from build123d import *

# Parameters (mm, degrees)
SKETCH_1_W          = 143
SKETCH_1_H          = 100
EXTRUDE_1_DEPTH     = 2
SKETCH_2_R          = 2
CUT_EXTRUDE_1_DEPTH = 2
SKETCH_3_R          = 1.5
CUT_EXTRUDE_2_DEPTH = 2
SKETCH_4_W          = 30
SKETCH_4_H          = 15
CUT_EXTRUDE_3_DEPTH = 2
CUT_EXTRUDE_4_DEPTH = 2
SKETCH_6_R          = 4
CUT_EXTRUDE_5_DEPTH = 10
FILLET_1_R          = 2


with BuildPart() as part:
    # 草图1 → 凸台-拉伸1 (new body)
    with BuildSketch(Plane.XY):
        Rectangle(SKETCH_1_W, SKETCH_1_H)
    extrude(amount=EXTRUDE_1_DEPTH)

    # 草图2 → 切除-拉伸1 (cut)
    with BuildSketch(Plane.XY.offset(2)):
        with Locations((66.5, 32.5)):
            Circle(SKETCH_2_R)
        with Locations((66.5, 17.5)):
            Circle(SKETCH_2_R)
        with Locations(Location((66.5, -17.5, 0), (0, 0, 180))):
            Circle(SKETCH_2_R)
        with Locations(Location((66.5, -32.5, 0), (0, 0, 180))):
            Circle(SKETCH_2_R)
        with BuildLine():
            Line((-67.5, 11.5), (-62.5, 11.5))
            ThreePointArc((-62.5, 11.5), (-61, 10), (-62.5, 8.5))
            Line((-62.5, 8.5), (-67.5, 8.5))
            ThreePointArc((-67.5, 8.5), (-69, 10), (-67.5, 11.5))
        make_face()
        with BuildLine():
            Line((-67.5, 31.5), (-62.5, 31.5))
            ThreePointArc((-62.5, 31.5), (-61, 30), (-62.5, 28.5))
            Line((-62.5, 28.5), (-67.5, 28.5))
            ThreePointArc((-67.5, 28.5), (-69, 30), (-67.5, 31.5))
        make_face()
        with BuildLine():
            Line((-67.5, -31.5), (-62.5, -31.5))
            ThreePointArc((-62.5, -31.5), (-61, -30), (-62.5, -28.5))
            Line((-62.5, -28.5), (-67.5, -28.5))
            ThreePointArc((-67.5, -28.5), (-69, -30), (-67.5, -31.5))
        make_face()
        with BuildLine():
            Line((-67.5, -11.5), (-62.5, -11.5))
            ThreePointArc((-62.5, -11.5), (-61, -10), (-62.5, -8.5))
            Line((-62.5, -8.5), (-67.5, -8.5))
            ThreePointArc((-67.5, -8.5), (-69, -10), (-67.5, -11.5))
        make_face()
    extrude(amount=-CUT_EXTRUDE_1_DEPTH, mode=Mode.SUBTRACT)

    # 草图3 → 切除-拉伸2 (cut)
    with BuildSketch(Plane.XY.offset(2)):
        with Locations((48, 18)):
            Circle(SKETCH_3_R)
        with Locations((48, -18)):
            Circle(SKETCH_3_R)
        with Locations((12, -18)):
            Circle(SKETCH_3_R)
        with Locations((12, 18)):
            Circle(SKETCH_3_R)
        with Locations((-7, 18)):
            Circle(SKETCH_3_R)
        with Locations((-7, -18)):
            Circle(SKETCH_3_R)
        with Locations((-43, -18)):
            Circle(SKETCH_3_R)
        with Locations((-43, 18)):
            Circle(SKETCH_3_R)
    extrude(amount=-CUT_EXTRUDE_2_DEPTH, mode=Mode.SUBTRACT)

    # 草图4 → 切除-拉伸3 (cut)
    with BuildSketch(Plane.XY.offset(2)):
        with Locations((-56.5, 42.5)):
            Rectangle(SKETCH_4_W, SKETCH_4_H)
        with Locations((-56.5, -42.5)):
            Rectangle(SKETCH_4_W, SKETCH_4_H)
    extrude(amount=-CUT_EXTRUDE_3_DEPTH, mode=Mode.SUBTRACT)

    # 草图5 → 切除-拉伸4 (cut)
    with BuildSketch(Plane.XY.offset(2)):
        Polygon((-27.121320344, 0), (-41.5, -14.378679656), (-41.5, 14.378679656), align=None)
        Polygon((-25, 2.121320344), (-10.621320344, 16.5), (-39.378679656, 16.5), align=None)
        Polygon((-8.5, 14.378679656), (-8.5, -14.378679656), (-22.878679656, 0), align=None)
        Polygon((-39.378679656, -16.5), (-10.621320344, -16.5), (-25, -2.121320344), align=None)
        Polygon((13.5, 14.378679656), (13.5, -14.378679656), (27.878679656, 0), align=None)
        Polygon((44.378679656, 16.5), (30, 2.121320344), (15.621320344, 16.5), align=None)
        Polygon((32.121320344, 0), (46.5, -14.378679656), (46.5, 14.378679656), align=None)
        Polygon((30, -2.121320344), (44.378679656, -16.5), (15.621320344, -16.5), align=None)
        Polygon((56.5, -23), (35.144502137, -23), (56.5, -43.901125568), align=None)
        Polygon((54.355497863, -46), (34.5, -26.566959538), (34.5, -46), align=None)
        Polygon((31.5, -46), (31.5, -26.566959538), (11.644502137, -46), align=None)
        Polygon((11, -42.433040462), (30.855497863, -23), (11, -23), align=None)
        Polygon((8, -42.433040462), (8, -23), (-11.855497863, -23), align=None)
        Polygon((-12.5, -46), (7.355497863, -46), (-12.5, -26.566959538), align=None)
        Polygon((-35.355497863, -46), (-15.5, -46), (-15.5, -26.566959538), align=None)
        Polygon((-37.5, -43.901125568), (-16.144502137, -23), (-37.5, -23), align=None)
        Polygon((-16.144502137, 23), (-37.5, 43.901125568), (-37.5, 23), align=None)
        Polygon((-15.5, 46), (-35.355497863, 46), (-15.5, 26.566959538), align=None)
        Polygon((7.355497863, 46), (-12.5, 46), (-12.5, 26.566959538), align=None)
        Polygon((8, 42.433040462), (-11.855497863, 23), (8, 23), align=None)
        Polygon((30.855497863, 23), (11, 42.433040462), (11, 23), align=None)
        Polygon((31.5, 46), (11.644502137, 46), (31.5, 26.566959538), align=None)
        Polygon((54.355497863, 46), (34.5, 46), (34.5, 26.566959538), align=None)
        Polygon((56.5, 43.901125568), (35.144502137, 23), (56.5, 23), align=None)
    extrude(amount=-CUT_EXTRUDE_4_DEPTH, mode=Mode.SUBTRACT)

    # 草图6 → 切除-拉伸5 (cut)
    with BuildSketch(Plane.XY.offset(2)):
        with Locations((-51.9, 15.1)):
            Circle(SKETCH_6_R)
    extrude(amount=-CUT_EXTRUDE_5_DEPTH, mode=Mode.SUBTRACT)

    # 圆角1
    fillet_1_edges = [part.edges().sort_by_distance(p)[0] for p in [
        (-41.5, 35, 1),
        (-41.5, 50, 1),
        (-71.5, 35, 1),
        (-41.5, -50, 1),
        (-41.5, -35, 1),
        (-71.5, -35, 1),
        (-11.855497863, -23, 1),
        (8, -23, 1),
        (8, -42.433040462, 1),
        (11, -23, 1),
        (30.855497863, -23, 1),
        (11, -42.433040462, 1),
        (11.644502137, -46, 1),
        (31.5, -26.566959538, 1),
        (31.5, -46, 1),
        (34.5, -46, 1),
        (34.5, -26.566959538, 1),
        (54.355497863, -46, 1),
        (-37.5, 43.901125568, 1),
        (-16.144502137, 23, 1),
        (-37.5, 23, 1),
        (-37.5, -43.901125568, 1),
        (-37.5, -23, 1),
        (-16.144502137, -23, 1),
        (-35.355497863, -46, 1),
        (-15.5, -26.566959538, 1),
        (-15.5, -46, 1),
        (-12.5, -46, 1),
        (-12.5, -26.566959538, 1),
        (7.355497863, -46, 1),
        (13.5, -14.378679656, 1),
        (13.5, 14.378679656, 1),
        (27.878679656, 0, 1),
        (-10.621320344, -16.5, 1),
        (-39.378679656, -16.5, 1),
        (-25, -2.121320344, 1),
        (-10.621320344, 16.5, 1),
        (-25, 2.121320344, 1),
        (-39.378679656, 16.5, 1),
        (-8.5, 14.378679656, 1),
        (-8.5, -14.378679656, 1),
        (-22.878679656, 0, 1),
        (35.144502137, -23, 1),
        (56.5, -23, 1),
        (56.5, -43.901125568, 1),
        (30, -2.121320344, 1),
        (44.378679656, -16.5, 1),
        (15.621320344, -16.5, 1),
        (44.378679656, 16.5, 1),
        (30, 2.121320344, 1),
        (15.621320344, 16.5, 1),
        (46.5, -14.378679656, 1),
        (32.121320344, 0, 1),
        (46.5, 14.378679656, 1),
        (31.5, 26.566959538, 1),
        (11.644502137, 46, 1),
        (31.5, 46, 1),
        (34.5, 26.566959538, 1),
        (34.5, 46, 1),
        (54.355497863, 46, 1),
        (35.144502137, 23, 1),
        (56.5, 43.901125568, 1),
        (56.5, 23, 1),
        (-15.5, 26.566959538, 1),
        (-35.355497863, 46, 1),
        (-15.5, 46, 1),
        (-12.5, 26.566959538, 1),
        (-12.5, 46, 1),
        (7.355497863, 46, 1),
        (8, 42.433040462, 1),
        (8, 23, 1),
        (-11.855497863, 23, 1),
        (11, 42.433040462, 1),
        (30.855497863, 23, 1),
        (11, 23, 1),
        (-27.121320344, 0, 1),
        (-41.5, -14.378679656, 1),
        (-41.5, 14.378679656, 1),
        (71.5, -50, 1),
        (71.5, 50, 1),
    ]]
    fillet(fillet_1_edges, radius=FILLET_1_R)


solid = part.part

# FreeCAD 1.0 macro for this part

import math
import FreeCAD as App
import Part
import Sketcher
Q = App.Units.Quantity


def edges_at(feature, points):
    """Names of the edges that pass closest to the given points."""
    edges = feature.Shape.Edges
    near = lambda p: min(range(len(edges)), key=lambda i: edges[i].distToShape(Part.Vertex(*p))[0])
    return sorted({f"Edge{near(p) + 1}" for p in points})

doc = App.newDocument("Part")
params = doc.addObject("Spreadsheet::Sheet", "Params")
for row, (alias, value) in enumerate([
    ("sketch1_width", "143 mm"),
    ("sketch1_height", "100 mm"),
    ("pad1_length", "2 mm"),
    ("sketch2_diameter", "4 mm"),
    ("sketch2_radius", "1.5 mm"),
    ("sketch2_width", "5 mm"),
    ("pocket1_length", "2 mm"),
    ("sketch3_diameter", "3 mm"),
    ("pocket2_length", "2 mm"),
    ("sketch4_width", "30 mm"),
    ("sketch4_height", "15 mm"),
    ("pocket3_length", "2 mm"),
    ("pocket4_length", "2 mm"),
    ("sketch6_diameter", "8 mm"),
    ("pocket5_length", "10 mm"),
    ("fillet_radius", "2 mm"),
], start=1):
    params.set(f"A{row}", alias)
    params.set(f"B{row}", "=" + value)
    params.setAlias(f"B{row}", alias)

body = doc.addObject("PartDesign::Body", "Body")

sketch1 = body.newObject("Sketcher::SketchObject", "Sketch")
sketch1.AttachmentSupport = (doc.getObject("XY_Plane"), [""])
sketch1.MapMode = "FlatFace"
sketch1.addGeometry([
    Part.LineSegment(App.Vector(-72, 50, 0), App.Vector(-72, -50, 0)),
    Part.LineSegment(App.Vector(-72, -50, 0), App.Vector(72, -50, 0)),
    Part.LineSegment(App.Vector(72, -50, 0), App.Vector(72, 50, 0)),
    Part.LineSegment(App.Vector(72, 50, 0), App.Vector(-72, 50, 0)),
], False)
sketch1.addConstraint([
    Sketcher.Constraint("Coincident", 0, 2, 1, 1),
    Sketcher.Constraint("Coincident", 1, 2, 2, 1),
    Sketcher.Constraint("Coincident", 2, 2, 3, 1),
    Sketcher.Constraint("Coincident", 3, 2, 0, 1),
    Sketcher.Constraint("Vertical", 0),
    Sketcher.Constraint("Horizontal", 1),
    Sketcher.Constraint("Vertical", 2),
    Sketcher.Constraint("Horizontal", 3),
    Sketcher.Constraint("Symmetric", 0, 2, 2, 2, -1, 1),
    Sketcher.Constraint("DistanceX", 1, 1, 1, 2, Q("143 mm")),
    Sketcher.Constraint("DistanceY", 0, 2, 0, 1, Q("100 mm")),
])
sketch1.setExpression("Constraints[9]", "Params.sketch1_width")
sketch1.setExpression("Constraints[10]", "Params.sketch1_height")
pad1 = body.newObject("PartDesign::Pad", "Pad")
pad1.Profile = sketch1
pad1.setExpression("Length", "Params.pad1_length")

sketch2 = body.newObject("Sketcher::SketchObject", "Sketch001")
sketch2.AttachmentSupport = (doc.getObject("XY_Plane"), [""])
sketch2.MapMode = "FlatFace"
sketch2.AttachmentOffset = App.Placement(App.Vector(0, 0, 2), App.Rotation())
sketch2.addGeometry([
    Part.Circle(App.Vector(66.5, 32.5, 0), App.Vector(0, 0, 1), 2),
    Part.Circle(App.Vector(66.5, 17.5, 0), App.Vector(0, 0, 1), 2),
    Part.Circle(App.Vector(66.5, -17.5, 0), App.Vector(0, 0, 1), 2),
    Part.Circle(App.Vector(66.5, -32.5, 0), App.Vector(0, 0, 1), 2),
    Part.LineSegment(App.Vector(-62.5, 11.5, 0), App.Vector(-67.5, 11.5, 0)),
    Part.ArcOfCircle(Part.Circle(App.Vector(-67.5, 10, 0), App.Vector(0, 0, 1), 1.5), math.radians(90), math.radians(270)),
    Part.LineSegment(App.Vector(-67.5, 8.5, 0), App.Vector(-62.5, 8.5, 0)),
    Part.ArcOfCircle(Part.Circle(App.Vector(-62.5, 10, 0), App.Vector(0, 0, 1), 1.5), math.radians(-90), math.radians(90)),
    Part.LineSegment(App.Vector(-62.5, 31.5, 0), App.Vector(-67.5, 31.5, 0)),
    Part.ArcOfCircle(Part.Circle(App.Vector(-67.5, 30, 0), App.Vector(0, 0, 1), 1.5), math.radians(90), math.radians(270)),
    Part.LineSegment(App.Vector(-67.5, 28.5, 0), App.Vector(-62.5, 28.5, 0)),
    Part.ArcOfCircle(Part.Circle(App.Vector(-62.5, 30, 0), App.Vector(0, 0, 1), 1.5), math.radians(-90), math.radians(90)),
    Part.LineSegment(App.Vector(-67.5, -31.5, 0), App.Vector(-62.5, -31.5, 0)),
    Part.ArcOfCircle(Part.Circle(App.Vector(-62.5, -30, 0), App.Vector(0, 0, 1), 1.5), math.radians(-90), math.radians(90)),
    Part.LineSegment(App.Vector(-62.5, -28.5, 0), App.Vector(-67.5, -28.5, 0)),
    Part.ArcOfCircle(Part.Circle(App.Vector(-67.5, -30, 0), App.Vector(0, 0, 1), 1.5), math.radians(90), math.radians(270)),
    Part.LineSegment(App.Vector(-67.5, -11.5, 0), App.Vector(-62.5, -11.5, 0)),
    Part.ArcOfCircle(Part.Circle(App.Vector(-62.5, -10, 0), App.Vector(0, 0, 1), 1.5), math.radians(-90), math.radians(90)),
    Part.LineSegment(App.Vector(-62.5, -8.5, 0), App.Vector(-67.5, -8.5, 0)),
    Part.ArcOfCircle(Part.Circle(App.Vector(-67.5, -10, 0), App.Vector(0, 0, 1), 1.5), math.radians(90), math.radians(270)),
], False)
sketch2.addConstraint([
    Sketcher.Constraint("Tangent", 4, 2, 5, 1),
    Sketcher.Constraint("Tangent", 5, 2, 6, 1),
    Sketcher.Constraint("Tangent", 6, 2, 7, 1),
    Sketcher.Constraint("Tangent", 7, 2, 4, 1),
    Sketcher.Constraint("Tangent", 8, 2, 9, 1),
    Sketcher.Constraint("Tangent", 9, 2, 10, 1),
    Sketcher.Constraint("Tangent", 10, 2, 11, 1),
    Sketcher.Constraint("Tangent", 11, 2, 8, 1),
    Sketcher.Constraint("Tangent", 12, 2, 13, 1),
    Sketcher.Constraint("Tangent", 13, 2, 14, 1),
    Sketcher.Constraint("Tangent", 14, 2, 15, 1),
    Sketcher.Constraint("Tangent", 15, 2, 12, 1),
    Sketcher.Constraint("Tangent", 16, 2, 17, 1),
    Sketcher.Constraint("Tangent", 17, 2, 18, 1),
    Sketcher.Constraint("Tangent", 18, 2, 19, 1),
    Sketcher.Constraint("Tangent", 19, 2, 16, 1),
    Sketcher.Constraint("Horizontal", 4),
    Sketcher.Constraint("Horizontal", 6),
    Sketcher.Constraint("Horizontal", 8),
    Sketcher.Constraint("Horizontal", 10),
    Sketcher.Constraint("Horizontal", 12),
    Sketcher.Constraint("Horizontal", 14),
    Sketcher.Constraint("Horizontal", 16),
    Sketcher.Constraint("Horizontal", 18),
    Sketcher.Constraint("Equal", 0, 1),
    Sketcher.Constraint("Equal", 1, 2),
    Sketcher.Constraint("Equal", 2, 3),
    Sketcher.Constraint("Equal", 7, 9),
    Sketcher.Constraint("Equal", 11, 13),
    Sketcher.Constraint("Equal", 15, 17),
    Sketcher.Constraint("Symmetric", 1, 3, 2, 3, -1),
    Sketcher.Constraint("Symmetric", 0, 3, 3, 3, -1),
    Sketcher.Constraint("Symmetric", 11, 3, 13, 3, -1),
    Sketcher.Constraint("Symmetric", 7, 3, 17, 3, -1),
    Sketcher.Constraint("Vertical", 0, 3, 1, 3),
    Sketcher.Constraint("Vertical", 5, 3, 9, 3),
    Sketcher.Constraint("Vertical", 7, 3, 11, 3),
    Sketcher.Constraint("Vertical", 9, 3, 15, 3),
    Sketcher.Constraint("Vertical", 15, 3, 19, 3),
    Sketcher.Constraint("Diameter", 0, Q("4 mm")),
    Sketcher.Constraint("Radius", 5, Q("1.5 mm")),
    Sketcher.Constraint("DistanceX", 4, 2, 4, 1, Q("5 mm")),
    Sketcher.Constraint("DistanceY", -1, 1, 5, 3, Q("10 mm")),
    Sketcher.Constraint("DistanceY", -1, 1, 9, 3, Q("30 mm")),
    Sketcher.Constraint("DistanceY", 1, 3, 0, 3, Q("15 mm")),
    Sketcher.Constraint("DistanceY", 2, 3, 1, 3, Q("35 mm")),
    Sketcher.Constraint("DistanceX", 5, 3, 1, 3, Q("134 mm")),
    Sketcher.Constraint("DistanceX", -1, 1, 0, 3, Q("66.5 mm")),
])
sketch2.setExpression("Constraints[39]", "Params.sketch2_diameter")
sketch2.setExpression("Constraints[40]", "Params.sketch2_radius")
sketch2.setExpression("Constraints[41]", "Params.sketch2_width")
pocket1 = body.newObject("PartDesign::Pocket", "Pocket")
pocket1.Profile = sketch2
pocket1.setExpression("Length", "Params.pocket1_length")

sketch3 = body.newObject("Sketcher::SketchObject", "Sketch002")
sketch3.AttachmentSupport = (doc.getObject("XY_Plane"), [""])
sketch3.MapMode = "FlatFace"
sketch3.AttachmentOffset = App.Placement(App.Vector(0, 0, 2), App.Rotation())
sketch3.addGeometry([
    Part.Circle(App.Vector(48, 18, 0), App.Vector(0, 0, 1), 1.5),
    Part.Circle(App.Vector(48, -18, 0), App.Vector(0, 0, 1), 1.5),
    Part.Circle(App.Vector(12, -18, 0), App.Vector(0, 0, 1), 1.5),
    Part.Circle(App.Vector(12, 18, 0), App.Vector(0, 0, 1), 1.5),
    Part.Circle(App.Vector(-7, 18, 0), App.Vector(0, 0, 1), 1.5),
    Part.Circle(App.Vector(-7, -18, 0), App.Vector(0, 0, 1), 1.5),
    Part.Circle(App.Vector(-43, -18, 0), App.Vector(0, 0, 1), 1.5),
    Part.Circle(App.Vector(-43, 18, 0), App.Vector(0, 0, 1), 1.5),
], False)
sketch3.addConstraint([
    Sketcher.Constraint("Equal", 0, 1),
    Sketcher.Constraint("Equal", 1, 2),
    Sketcher.Constraint("Equal", 2, 3),
    Sketcher.Constraint("Equal", 3, 4),
    Sketcher.Constraint("Equal", 4, 5),
    Sketcher.Constraint("Equal", 5, 6),
    Sketcher.Constraint("Equal", 6, 7),
    Sketcher.Constraint("Symmetric", 0, 3, 1, 3, -1),
    Sketcher.Constraint("Symmetric", 2, 3, 3, 3, -1),
    Sketcher.Constraint("Symmetric", 4, 3, 5, 3, -1),
    Sketcher.Constraint("Symmetric", 6, 3, 7, 3, -1),
    Sketcher.Constraint("Horizontal", 1, 3, 2, 3),
    Sketcher.Constraint("Horizontal", 3, 3, 4, 3),
    Sketcher.Constraint("Horizontal", 5, 3, 6, 3),
    Sketcher.Constraint("Diameter", 0, Q("3 mm")),
    Sketcher.Constraint("DistanceX", -1, 1, 0, 3, Q("48 mm")),
    Sketcher.Constraint("DistanceY", -1, 1, 0, 3, Q("18 mm")),
    Sketcher.Constraint("DistanceX", -1, 1, 2, 3, Q("12 mm")),
    Sketcher.Constraint("DistanceX", 4, 3, -1, 1, Q("7 mm")),
    Sketcher.Constraint("DistanceX", 6, 3, -1, 1, Q("43 mm")),
])
sketch3.setExpression("Constraints[14]", "Params.sketch3_diameter")
pocket2 = body.newObject("PartDesign::Pocket", "Pocket001")
pocket2.Profile = sketch3
pocket2.setExpression("Length", "Params.pocket2_length")

sketch4 = body.newObject("Sketcher::SketchObject", "Sketch003")
sketch4.AttachmentSupport = (doc.getObject("XY_Plane"), [""])
sketch4.MapMode = "FlatFace"
sketch4.AttachmentOffset = App.Placement(App.Vector(0, 0, 2), App.Rotation())
sketch4.addGeometry([
    Part.LineSegment(App.Vector(-72, 50, 0), App.Vector(-72, 35, 0)),
    Part.LineSegment(App.Vector(-72, 35, 0), App.Vector(-42, 35, 0)),
    Part.LineSegment(App.Vector(-42, 35, 0), App.Vector(-42, 50, 0)),
    Part.LineSegment(App.Vector(-42, 50, 0), App.Vector(-72, 50, 0)),
    Part.LineSegment(App.Vector(-72, -35, 0), App.Vector(-72, -50, 0)),
    Part.LineSegment(App.Vector(-72, -50, 0), App.Vector(-42, -50, 0)),
    Part.LineSegment(App.Vector(-42, -50, 0), App.Vector(-42, -35, 0)),
    Part.LineSegment(App.Vector(-42, -35, 0), App.Vector(-72, -35, 0)),
], False)
sketch4.addConstraint([
    Sketcher.Constraint("Coincident", 0, 2, 1, 1),
    Sketcher.Constraint("Coincident", 1, 2, 2, 1),
    Sketcher.Constraint("Coincident", 2, 2, 3, 1),
    Sketcher.Constraint("Coincident", 3, 2, 0, 1),
    Sketcher.Constraint("Coincident", 4, 2, 5, 1),
    Sketcher.Constraint("Coincident", 5, 2, 6, 1),
    Sketcher.Constraint("Coincident", 6, 2, 7, 1),
    Sketcher.Constraint("Coincident", 7, 2, 4, 1),
    Sketcher.Constraint("Vertical", 0),
    Sketcher.Constraint("Horizontal", 1),
    Sketcher.Constraint("Vertical", 2),
    Sketcher.Constraint("Horizontal", 3),
    Sketcher.Constraint("Vertical", 4),
    Sketcher.Constraint("Horizontal", 5),
    Sketcher.Constraint("Vertical", 6),
    Sketcher.Constraint("Horizontal", 7),
    Sketcher.Constraint("Symmetric", 3, 2, 4, 2, -1),
    Sketcher.Constraint("Symmetric", 1, 2, 6, 2, -1),
    Sketcher.Constraint("DistanceX", 1, 1, 1, 2, Q("30 mm")),
    Sketcher.Constraint("DistanceY", 0, 2, 0, 1, Q("15 mm")),
    Sketcher.Constraint("DistanceY", -1, 1, 0, 2, Q("35 mm")),
    Sketcher.Constraint("DistanceX", 0, 2, -1, 1, Q("71.5 mm")),
])
sketch4.setExpression("Constraints[18]", "Params.sketch4_width")
sketch4.setExpression("Constraints[19]", "Params.sketch4_height")
pocket3 = body.newObject("PartDesign::Pocket", "Pocket002")
pocket3.Profile = sketch4
pocket3.setExpression("Length", "Params.pocket3_length")

sketch5 = body.newObject("Sketcher::SketchObject", "Sketch004")
sketch5.AttachmentSupport = (doc.getObject("XY_Plane"), [""])
sketch5.MapMode = "FlatFace"
sketch5.AttachmentOffset = App.Placement(App.Vector(0, 0, 2), App.Rotation())
sketch5.addGeometry([
    Part.LineSegment(App.Vector(-42, -14, 0), App.Vector(-27, 0, 0)),
    Part.LineSegment(App.Vector(-27, 0, 0), App.Vector(-42, 14, 0)),
    Part.LineSegment(App.Vector(-42, 14, 0), App.Vector(-42, -14, 0)),
    Part.LineSegment(App.Vector(-25, 2, 0), App.Vector(-11, 16, 0)),
    Part.LineSegment(App.Vector(-11, 16, 0), App.Vector(-39, 16, 0)),
    Part.LineSegment(App.Vector(-39, 16, 0), App.Vector(-25, 2, 0)),
    Part.LineSegment(App.Vector(-8, -14, 0), App.Vector(-8, 14, 0)),
    Part.LineSegment(App.Vector(-8, 14, 0), App.Vector(-23, 0, 0)),
    Part.LineSegment(App.Vector(-23, 0, 0), App.Vector(-8, -14, 0)),
    Part.LineSegment(App.Vector(-39, -16, 0), App.Vector(-11, -16, 0)),
    Part.LineSegment(App.Vector(-11, -16, 0), App.Vector(-25, -2, 0)),
    Part.LineSegment(App.Vector(-25, -2, 0), App.Vector(-39, -16, 0)),
    Part.LineSegment(App.Vector(14, 14, 0), App.Vector(14, -14, 0)),
    Part.LineSegment(App.Vector(14, -14, 0), App.Vector(28, 0, 0)),
    Part.LineSegment(App.Vector(28, 0, 0), App.Vector(14, 14, 0)),
    Part.LineSegment(App.Vector(30, 2, 0), App.Vector(44, 16, 0)),
    Part.LineSegment(App.Vector(44, 16, 0), App.Vector(16, 16, 0)),
    Part.LineSegment(App.Vector(16, 16, 0), App.Vector(30, 2, 0)),
    Part.LineSegment(App.Vector(32, 0, 0), App.Vector(46, -14, 0)),
    Part.LineSegment(App.Vector(46, -14, 0), App.Vector(46, 14, 0)),
    Part.LineSegment(App.Vector(46, 14, 0), App.Vector(32, 0, 0)),
    Part.LineSegment(App.Vector(44, -16, 0), App.Vector(30, -2, 0)),
    Part.LineSegment(App.Vector(30, -2, 0), App.Vector(16, -16, 0)),
    Part.LineSegment(App.Vector(16, -16, 0), App.Vector(44, -16, 0)),
    Part.LineSegment(App.Vector(56, -23, 0), App.Vector(35, -23, 0)),
    Part.LineSegment(App.Vector(35, -23, 0), App.Vector(56, -44, 0)),
    Part.LineSegment(App.Vector(56, -44, 0), App.Vector(56, -23, 0)),
    Part.LineSegment(App.Vector(54, -46, 0), App.Vector(34, -27, 0)),
    Part.LineSegment(App.Vector(34, -27, 0), App.Vector(34, -46, 0)),
    Part.LineSegment(App.Vector(34, -46, 0), App.Vector(54, -46, 0)),
    Part.LineSegment(App.Vector(32, -46, 0), App.Vector(32, -27, 0)),
    Part.LineSegment(App.Vector(32, -27, 0), App.Vector(12, -46, 0)),
    Part.LineSegment(App.Vector(12, -46, 0), App.Vector(32, -46, 0)),
    Part.LineSegment(App.Vector(11, -42, 0), App.Vector(31, -23, 0)),
    Part.LineSegment(App.Vector(31, -23, 0), App.Vector(11, -23, 0)),
    Part.LineSegment(App.Vector(11, -23, 0), App.Vector(11, -42, 0)),
    Part.LineSegment(App.Vector(8, -42, 0), App.Vector(8, -23, 0)),
    Part.LineSegment(App.Vector(8, -23, 0), App.Vector(-12, -23, 0)),
    Part.LineSegment(App.Vector(-12, -23, 0), App.Vector(8, -42, 0)),
    Part.LineSegment(App.Vector(-12, -46, 0), App.Vector(7, -46, 0)),
    Part.LineSegment(App.Vector(7, -46, 0), App.Vector(-12, -27, 0)),
    Part.LineSegment(App.Vector(-12, -27, 0), App.Vector(-12, -46, 0)),
    Part.LineSegment(App.Vector(-35, -46, 0), App.Vector(-16, -46, 0)),
    Part.LineSegment(App.Vector(-16, -46, 0), App.Vector(-16, -27, 0)),
    Part.LineSegment(App.Vector(-16, -27, 0), App.Vector(-35, -46, 0)),
    Part.LineSegment(App.Vector(-38, -44, 0), App.Vector(-16, -23, 0)),
    Part.LineSegment(App.Vector(-16, -23, 0), App.Vector(-38, -23, 0)),
    Part.LineSegment(App.Vector(-38, -23, 0), App.Vector(-38, -44, 0)),
    Part.LineSegment(App.Vector(-16, 23, 0), App.Vector(-38, 44, 0)),
    Part.LineSegment(App.Vector(-38, 44, 0), App.Vector(-38, 23, 0)),
    Part.LineSegment(App.Vector(-38, 23, 0), App.Vector(-16, 23, 0)),
    Part.LineSegment(App.Vector(-16, 46, 0), App.Vector(-35, 46, 0)),
    Part.LineSegment(App.Vector(-35, 46, 0), App.Vector(-16, 27, 0)),
    Part.LineSegment(App.Vector(-16, 27, 0), App.Vector(-16, 46, 0)),
    Part.LineSegment(App.Vector(7, 46, 0), App.Vector(-12, 46, 0)),
    Part.LineSegment(App.Vector(-12, 46, 0), App.Vector(-12, 27, 0)),
    Part.LineSegment(App.Vector(-12, 27, 0), App.Vector(7, 46, 0)),
    Part.LineSegment(App.Vector(8, 42, 0), App.Vector(-12, 23, 0)),
    Part.LineSegment(App.Vector(-12, 23, 0), App.Vector(8, 23, 0)),
    Part.LineSegment(App.Vector(8, 23, 0), App.Vector(8, 42, 0)),
    Part.LineSegment(App.Vector(31, 23, 0), App.Vector(11, 42, 0)),
    Part.LineSegment(App.Vector(11, 42, 0), App.Vector(11, 23, 0)),
    Part.LineSegment(App.Vector(11, 23, 0), App.Vector(31, 23, 0)),
    Part.LineSegment(App.Vector(32, 46, 0), App.Vector(12, 46, 0)),
    Part.LineSegment(App.Vector(12, 46, 0), App.Vector(32, 27, 0)),
    Part.LineSegment(App.Vector(32, 27, 0), App.Vector(32, 46, 0)),
    Part.LineSegment(App.Vector(54, 46, 0), App.Vector(34, 46, 0)),
    Part.LineSegment(App.Vector(34, 46, 0), App.Vector(34, 27, 0)),
    Part.LineSegment(App.Vector(34, 27, 0), App.Vector(54, 46, 0)),
    Part.LineSegment(App.Vector(56, 44, 0), App.Vector(35, 23, 0)),
    Part.LineSegment(App.Vector(35, 23, 0), App.Vector(56, 23, 0)),
    Part.LineSegment(App.Vector(56, 23, 0), App.Vector(56, 44, 0)),
], False)
sketch5.addConstraint([
    Sketcher.Constraint("Coincident", 0, 2, 1, 1),
    Sketcher.Constraint("Coincident", 1, 2, 2, 1),
    Sketcher.Constraint("Coincident", 2, 2, 0, 1),
    Sketcher.Constraint("Coincident", 3, 2, 4, 1),
    Sketcher.Constraint("Coincident", 4, 2, 5, 1),
    Sketcher.Constraint("Coincident", 5, 2, 3, 1),
    Sketcher.Constraint("Coincident", 6, 2, 7, 1),
    Sketcher.Constraint("Coincident", 7, 2, 8, 1),
    Sketcher.Constraint("Coincident", 8, 2, 6, 1),
    Sketcher.Constraint("Coincident", 9, 2, 10, 1),
    Sketcher.Constraint("Coincident", 10, 2, 11, 1),
    Sketcher.Constraint("Coincident", 11, 2, 9, 1),
    Sketcher.Constraint("Coincident", 12, 2, 13, 1),
    Sketcher.Constraint("Coincident", 13, 2, 14, 1),
    Sketcher.Constraint("Coincident", 14, 2, 12, 1),
    Sketcher.Constraint("Coincident", 15, 2, 16, 1),
    Sketcher.Constraint("Coincident", 16, 2, 17, 1),
    Sketcher.Constraint("Coincident", 17, 2, 15, 1),
    Sketcher.Constraint("Coincident", 18, 2, 19, 1),
    Sketcher.Constraint("Coincident", 19, 2, 20, 1),
    Sketcher.Constraint("Coincident", 20, 2, 18, 1),
    Sketcher.Constraint("Coincident", 21, 2, 22, 1),
    Sketcher.Constraint("Coincident", 22, 2, 23, 1),
    Sketcher.Constraint("Coincident", 23, 2, 21, 1),
    Sketcher.Constraint("Coincident", 24, 2, 25, 1),
    Sketcher.Constraint("Coincident", 25, 2, 26, 1),
    Sketcher.Constraint("Coincident", 26, 2, 24, 1),
    Sketcher.Constraint("Coincident", 27, 2, 28, 1),
    Sketcher.Constraint("Coincident", 28, 2, 29, 1),
    Sketcher.Constraint("Coincident", 29, 2, 27, 1),
    Sketcher.Constraint("Coincident", 30, 2, 31, 1),
    Sketcher.Constraint("Coincident", 31, 2, 32, 1),
    Sketcher.Constraint("Coincident", 32, 2, 30, 1),
    Sketcher.Constraint("Coincident", 33, 2, 34, 1),
    Sketcher.Constraint("Coincident", 34, 2, 35, 1),
    Sketcher.Constraint("Coincident", 35, 2, 33, 1),
    Sketcher.Constraint("Coincident", 36, 2, 37, 1),
    Sketcher.Constraint("Coincident", 37, 2, 38, 1),
    Sketcher.Constraint("Coincident", 38, 2, 36, 1),
    Sketcher.Constraint("Coincident", 39, 2, 40, 1),
    Sketcher.Constraint("Coincident", 40, 2, 41, 1),
    Sketcher.Constraint("Coincident", 41, 2, 39, 1),
    Sketcher.Constraint("Coincident", 42, 2, 43, 1),
    Sketcher.Constraint("Coincident", 43, 2, 44, 1),
    Sketcher.Constraint("Coincident", 44, 2, 42, 1),
    Sketcher.Constraint("Coincident", 45, 2, 46, 1),
    Sketcher.Constraint("Coincident", 46, 2, 47, 1),
    Sketcher.Constraint("Coincident", 47, 2, 45, 1),
    Sketcher.Constraint("Coincident", 48, 2, 49, 1),
    Sketcher.Constraint("Coincident", 49, 2, 50, 1),
    Sketcher.Constraint("Coincident", 50, 2, 48, 1),
    Sketcher.Constraint("Coincident", 51, 2, 52, 1),
    Sketcher.Constraint("Coincident", 52, 2, 53, 1),
    Sketcher.Constraint("Coincident", 53, 2, 51, 1),
    Sketcher.Constraint("Coincident", 54, 2, 55, 1),
    Sketcher.Constraint("Coincident", 55, 2, 56, 1),
    Sketcher.Constraint("Coincident", 56, 2, 54, 1),
    Sketcher.Constraint("Coincident", 57, 2, 58, 1),
    Sketcher.Constraint("Coincident", 58, 2, 59, 1),
    Sketcher.Constraint("Coincident", 59, 2, 57, 1),
    Sketcher.Constraint("Coincident", 60, 2, 61, 1),
    Sketcher.Constraint("Coincident", 61, 2, 62, 1),
    Sketcher.Constraint("Coincident", 62, 2, 60, 1),
    Sketcher.Constraint("Coincident", 63, 2, 64, 1),
    Sketcher.Constraint("Coincident", 64, 2, 65, 1),
    Sketcher.Constraint("Coincident", 65, 2, 63, 1),
    Sketcher.Constraint("Coincident", 66, 2, 67, 1),
    Sketcher.Constraint("Coincident", 67, 2, 68, 1),
    Sketcher.Constraint("Coincident", 68, 2, 66, 1),
    Sketcher.Constraint("Coincident", 69, 2, 70, 1),
    Sketcher.Constraint("Coincident", 70, 2, 71, 1),
    Sketcher.Constraint("Coincident", 71, 2, 69, 1),
    Sketcher.Constraint("Vertical", 2),
    Sketcher.Constraint("Horizontal", 4),
    Sketcher.Constraint("Vertical", 6),
    Sketcher.Constraint("Horizontal", 9),
    Sketcher.Constraint("Vertical", 12),
    Sketcher.Constraint("Horizontal", 16),
    Sketcher.Constraint("Vertical", 19),
    Sketcher.Constraint("Horizontal", 23),
    Sketcher.Constraint("Horizontal", 24),
    Sketcher.Constraint("Vertical", 26),
    Sketcher.Constraint("Vertical", 28),
    Sketcher.Constraint("Horizontal", 29),
    Sketcher.Constraint("Vertical", 30),
    Sketcher.Constraint("Horizontal", 32),
    Sketcher.Constraint("Horizontal", 34),
    Sketcher.Constraint("Vertical", 35),
    Sketcher.Constraint("Vertical", 36),
    Sketcher.Constraint("Horizontal", 37),
    Sketcher.Constraint("Horizontal", 39),
    Sketcher.Constraint("Vertical", 41),
    Sketcher.Constraint("Horizontal", 42),
    Sketcher.Constraint("Vertical", 43),
    Sketcher.Constraint("Horizontal", 46),
    Sketcher.Constraint("Vertical", 47),
    Sketcher.Constraint("Vertical", 49),
    Sketcher.Constraint("Horizontal", 50),
    Sketcher.Constraint("Horizontal", 51),
    Sketcher.Constraint("Vertical", 53),
    Sketcher.Constraint("Horizontal", 54),
    Sketcher.Constraint("Vertical", 55),
    Sketcher.Constraint("Horizontal", 58),
    Sketcher.Constraint("Vertical", 59),
    Sketcher.Constraint("Vertical", 61),
    Sketcher.Constraint("Horizontal", 62),
    Sketcher.Constraint("Horizontal", 63),
    Sketcher.Constraint("Vertical", 65),
    Sketcher.Constraint("Horizontal", 66),
    Sketcher.Constraint("Vertical", 67),
    Sketcher.Constraint("Horizontal", 70),
    Sketcher.Constraint("Vertical", 71),
    Sketcher.Constraint("Symmetric", 3, 2, 9, 2, -1),
    Sketcher.Constraint("Symmetric", 5, 2, 10, 2, -1),
    Sketcher.Constraint("Symmetric", 17, 2, 21, 2, -1),
    Sketcher.Constraint("Symmetric", 16, 2, 22, 2, -1),
    Sketcher.Constraint("Symmetric", 47, 2, 48, 2, -1),
    Sketcher.Constraint("Symmetric", 45, 2, 50, 2, -1),
    Sketcher.Constraint("Symmetric", 44, 2, 51, 2, -1),
    Sketcher.Constraint("Symmetric", 43, 2, 52, 2, -1),
    Sketcher.Constraint("Symmetric", 41, 2, 54, 2, -1),
    Sketcher.Constraint("Symmetric", 37, 2, 57, 2, -1),
    Sketcher.Constraint("Symmetric", 38, 2, 59, 2, -1),
    Sketcher.Constraint("Symmetric", 35, 2, 60, 2, -1),
    Sketcher.Constraint("Symmetric", 33, 2, 62, 2, -1),
    Sketcher.Constraint("Symmetric", 31, 2, 63, 2, -1),
    Sketcher.Constraint("Symmetric", 30, 2, 64, 2, -1),
    Sketcher.Constraint("Symmetric", 28, 2, 66, 2, -1),
    Sketcher.Constraint("Symmetric", 24, 2, 69, 2, -1),
    Sketcher.Constraint("Symmetric", 25, 2, 71, 2, -1),
    Sketcher.Constraint("PointOnObject", 0, 2, -1),
    Sketcher.Constraint("PointOnObject", 7, 2, -1),
    Sketcher.Constraint("PointOnObject", 13, 2, -1),
    Sketcher.Constraint("PointOnObject", 20, 2, -1),
    Sketcher.Constraint("Perpendicular", 0, 1),
    Sketcher.Constraint("Perpendicular", 1, 3),
    Sketcher.Constraint("Perpendicular", 3, 5),
    Sketcher.Constraint("Perpendicular", 5, 7),
    Sketcher.Constraint("Perpendicular", 7, 8),
    Sketcher.Constraint("Parallel", 8, 10),
    Sketcher.Constraint("Perpendicular", 10, 11),
    Sketcher.Constraint("Parallel", 11, 13),
    Sketcher.Constraint("Perpendicular", 13, 14),
    Sketcher.Constraint("Perpendicular", 14, 15),
    Sketcher.Constraint("Perpendicular", 15, 17),
    Sketcher.Constraint("Parallel", 17, 18),
    Sketcher.Constraint("Perpendicular", 18, 20),
    Sketcher.Constraint("Perpendicular", 20, 21),
    Sketcher.Constraint("Parallel", 25, 27),
    Sketcher.Constraint("Parallel", 31, 33),
    Sketcher.Constraint("Parallel", 27, 38),
    Sketcher.Constraint("Parallel", 38, 40),
    Sketcher.Constraint("Parallel", 33, 44),
    Sketcher.Constraint("Parallel", 44, 45),
    Sketcher.Constraint("Parallel", 40, 48),
    Sketcher.Constraint("Parallel", 45, 56),
    Sketcher.Constraint("Parallel", 57, 68),
    Sketcher.Constraint("Horizontal", 1, 2, 6, 2),
    Sketcher.Constraint("Horizontal", 8, 2, 12, 2),
    Sketcher.Constraint("Horizontal", 4, 2, 15, 2),
    Sketcher.Constraint("Horizontal", 5, 2, 17, 2),
    Sketcher.Constraint("Horizontal", 12, 2, 18, 2),
    Sketcher.Constraint("Horizontal", 27, 2, 30, 2),
    Sketcher.Constraint("Horizontal", 29, 2, 31, 2),
    Sketcher.Constraint("Horizontal", 26, 2, 33, 2),
    Sketcher.Constraint("Horizontal", 34, 2, 36, 2),
    Sketcher.Constraint("Horizontal", 35, 2, 38, 2),
    Sketcher.Constraint("Horizontal", 32, 2, 39, 2),
    Sketcher.Constraint("Horizontal", 30, 2, 40, 2),
    Sketcher.Constraint("Horizontal", 41, 2, 42, 2),
    Sketcher.Constraint("Horizontal", 40, 2, 43, 2),
    Sketcher.Constraint("Horizontal", 37, 2, 45, 2),
    Sketcher.Constraint("Horizontal", 25, 2, 47, 2),
    Sketcher.Constraint("Horizontal", 52, 2, 55, 2),
    Sketcher.Constraint("Horizontal", 64, 2, 67, 2),
    Sketcher.Constraint("Equal", 32, 34),
    Sketcher.Constraint("Equal", 23, 2),
    Sketcher.Constraint("DistanceX", 5, 2, -1, 1, Q("25 mm")),
    Sketcher.Constraint("DistanceX", -1, 1, 17, 2, Q("30 mm")),
    Sketcher.Constraint("DistanceY", 24, 2, -1, 1, Q("23 mm")),
    Sketcher.Constraint("DistanceY", 28, 2, -1, 1, Q("46 mm")),
    Sketcher.Constraint("DistanceX", -1, 1, 34, 2, Q("11 mm")),
    Sketcher.Constraint("DistanceX", -1, 1, 36, 2, Q("8 mm")),
    Sketcher.Constraint("DistanceX", 1, 2, -1, 1, Q("41.5 mm")),
    Sketcher.Constraint("DistanceY", -1, 1, 3, 2, Q("16.5 mm")),
    Sketcher.Constraint("DistanceX", 6, 2, -1, 1, Q("8.5 mm")),
    Sketcher.Constraint("DistanceX", -1, 1, 12, 2, Q("13.5 mm")),
    Sketcher.Constraint("DistanceX", -1, 1, 18, 2, Q("46.5 mm")),
    Sketcher.Constraint("DistanceX", -1, 1, 25, 2, Q("56.5 mm")),
    Sketcher.Constraint("DistanceX", -1, 1, 27, 2, Q("34.5 mm")),
    Sketcher.Constraint("DistanceX", -1, 1, 30, 2, Q("31.5 mm")),
    Sketcher.Constraint("DistanceX", 40, 2, -1, 1, Q("12.5 mm")),
    Sketcher.Constraint("DistanceX", 42, 2, -1, 1, Q("15.5 mm")),
    Sketcher.Constraint("DistanceX", 46, 2, -1, 1, Q("37.5 mm")),
    Sketcher.Constraint("DistanceX", 4, 2, 4, 1, Q("28.757359 mm")),
    Sketcher.Constraint("DistanceY", 28, 2, 28, 1, Q("19.43304 mm")),
    Sketcher.Constraint("DistanceX", 24, 2, 24, 1, Q("21.355498 mm")),
    Sketcher.Constraint("DistanceX", 29, 1, 29, 2, Q("19.855498 mm")),
])
pocket4 = body.newObject("PartDesign::Pocket", "Pocket003")
pocket4.Profile = sketch5
pocket4.setExpression("Length", "Params.pocket4_length")

sketch6 = body.newObject("Sketcher::SketchObject", "Sketch005")
sketch6.AttachmentSupport = (doc.getObject("XY_Plane"), [""])
sketch6.MapMode = "FlatFace"
sketch6.AttachmentOffset = App.Placement(App.Vector(0, 0, 2), App.Rotation())
sketch6.addGeometry(Part.Circle(App.Vector(-51.9, 15.1, 0), App.Vector(0, 0, 1), 4), False)
sketch6.addConstraint([
    Sketcher.Constraint("Diameter", 0, Q("8 mm")),
    Sketcher.Constraint("DistanceX", 0, 3, -1, 1, Q("51.9 mm")),
    Sketcher.Constraint("DistanceY", -1, 1, 0, 3, Q("15.1 mm")),
])
sketch6.setExpression("Constraints[0]", "Params.sketch6_diameter")
pocket5 = body.newObject("PartDesign::Pocket", "Pocket004")
pocket5.Profile = sketch6
pocket5.setExpression("Length", "Params.pocket5_length")
doc.recompute()

fillet = body.newObject("PartDesign::Fillet", "Fillet")
fillet.Base = (pocket5, edges_at(pocket5, [
    (-41.5, 35, 1),
    (-41.5, 50, 1),
    (-71.5, 35, 1),
    (-41.5, -50, 1),
    (-41.5, -35, 1),
    (-71.5, -35, 1),
    (-11.855, -23, 1),
    (8, -23, 1),
    (8, -42.433, 1),
    (11, -23, 1),
    (30.855, -23, 1),
    (11, -42.433, 1),
    (11.645, -46, 1),
    (31.5, -26.567, 1),
    (31.5, -46, 1),
    (34.5, -46, 1),
    (34.5, -26.567, 1),
    (54.355, -46, 1),
    (-37.5, 43.901, 1),
    (-16.145, 23, 1),
    (-37.5, 23, 1),
    (-37.5, -43.901, 1),
    (-37.5, -23, 1),
    (-16.145, -23, 1),
    (-35.355, -46, 1),
    (-15.5, -26.567, 1),
    (-15.5, -46, 1),
    (-12.5, -46, 1),
    (-12.5, -26.567, 1),
    (7.355, -46, 1),
    (13.5, -14.379, 1),
    (13.5, 14.379, 1),
    (27.879, 0, 1),
    (-10.621, -16.5, 1),
    (-39.379, -16.5, 1),
    (-25, -2.121, 1),
    (-10.621, 16.5, 1),
    (-25, 2.121, 1),
    (-39.379, 16.5, 1),
    (-8.5, 14.379, 1),
    (-8.5, -14.379, 1),
    (-22.879, 0, 1),
    (35.145, -23, 1),
    (56.5, -23, 1),
    (56.5, -43.901, 1),
    (30, -2.121, 1),
    (44.379, -16.5, 1),
    (15.621, -16.5, 1),
    (44.379, 16.5, 1),
    (30, 2.121, 1),
    (15.621, 16.5, 1),
    (46.5, -14.379, 1),
    (32.121, 0, 1),
    (46.5, 14.379, 1),
    (31.5, 26.567, 1),
    (11.645, 46, 1),
    (31.5, 46, 1),
    (34.5, 26.567, 1),
    (34.5, 46, 1),
    (54.355, 46, 1),
    (35.145, 23, 1),
    (56.5, 43.901, 1),
    (56.5, 23, 1),
    (-15.5, 26.567, 1),
    (-35.355, 46, 1),
    (-15.5, 46, 1),
    (-12.5, 26.567, 1),
    (-12.5, 46, 1),
    (7.355, 46, 1),
    (8, 42.433, 1),
    (8, 23, 1),
    (-11.855, 23, 1),
    (11, 42.433, 1),
    (30.855, 23, 1),
    (11, 23, 1),
    (-27.121, 0, 1),
    (-41.5, -14.379, 1),
    (-41.5, 14.379, 1),
    (71.5, -50, 1),
    (71.5, 50, 1),
]))
fillet.setExpression("Radius", "Params.fillet_radius")

doc.recompute()
